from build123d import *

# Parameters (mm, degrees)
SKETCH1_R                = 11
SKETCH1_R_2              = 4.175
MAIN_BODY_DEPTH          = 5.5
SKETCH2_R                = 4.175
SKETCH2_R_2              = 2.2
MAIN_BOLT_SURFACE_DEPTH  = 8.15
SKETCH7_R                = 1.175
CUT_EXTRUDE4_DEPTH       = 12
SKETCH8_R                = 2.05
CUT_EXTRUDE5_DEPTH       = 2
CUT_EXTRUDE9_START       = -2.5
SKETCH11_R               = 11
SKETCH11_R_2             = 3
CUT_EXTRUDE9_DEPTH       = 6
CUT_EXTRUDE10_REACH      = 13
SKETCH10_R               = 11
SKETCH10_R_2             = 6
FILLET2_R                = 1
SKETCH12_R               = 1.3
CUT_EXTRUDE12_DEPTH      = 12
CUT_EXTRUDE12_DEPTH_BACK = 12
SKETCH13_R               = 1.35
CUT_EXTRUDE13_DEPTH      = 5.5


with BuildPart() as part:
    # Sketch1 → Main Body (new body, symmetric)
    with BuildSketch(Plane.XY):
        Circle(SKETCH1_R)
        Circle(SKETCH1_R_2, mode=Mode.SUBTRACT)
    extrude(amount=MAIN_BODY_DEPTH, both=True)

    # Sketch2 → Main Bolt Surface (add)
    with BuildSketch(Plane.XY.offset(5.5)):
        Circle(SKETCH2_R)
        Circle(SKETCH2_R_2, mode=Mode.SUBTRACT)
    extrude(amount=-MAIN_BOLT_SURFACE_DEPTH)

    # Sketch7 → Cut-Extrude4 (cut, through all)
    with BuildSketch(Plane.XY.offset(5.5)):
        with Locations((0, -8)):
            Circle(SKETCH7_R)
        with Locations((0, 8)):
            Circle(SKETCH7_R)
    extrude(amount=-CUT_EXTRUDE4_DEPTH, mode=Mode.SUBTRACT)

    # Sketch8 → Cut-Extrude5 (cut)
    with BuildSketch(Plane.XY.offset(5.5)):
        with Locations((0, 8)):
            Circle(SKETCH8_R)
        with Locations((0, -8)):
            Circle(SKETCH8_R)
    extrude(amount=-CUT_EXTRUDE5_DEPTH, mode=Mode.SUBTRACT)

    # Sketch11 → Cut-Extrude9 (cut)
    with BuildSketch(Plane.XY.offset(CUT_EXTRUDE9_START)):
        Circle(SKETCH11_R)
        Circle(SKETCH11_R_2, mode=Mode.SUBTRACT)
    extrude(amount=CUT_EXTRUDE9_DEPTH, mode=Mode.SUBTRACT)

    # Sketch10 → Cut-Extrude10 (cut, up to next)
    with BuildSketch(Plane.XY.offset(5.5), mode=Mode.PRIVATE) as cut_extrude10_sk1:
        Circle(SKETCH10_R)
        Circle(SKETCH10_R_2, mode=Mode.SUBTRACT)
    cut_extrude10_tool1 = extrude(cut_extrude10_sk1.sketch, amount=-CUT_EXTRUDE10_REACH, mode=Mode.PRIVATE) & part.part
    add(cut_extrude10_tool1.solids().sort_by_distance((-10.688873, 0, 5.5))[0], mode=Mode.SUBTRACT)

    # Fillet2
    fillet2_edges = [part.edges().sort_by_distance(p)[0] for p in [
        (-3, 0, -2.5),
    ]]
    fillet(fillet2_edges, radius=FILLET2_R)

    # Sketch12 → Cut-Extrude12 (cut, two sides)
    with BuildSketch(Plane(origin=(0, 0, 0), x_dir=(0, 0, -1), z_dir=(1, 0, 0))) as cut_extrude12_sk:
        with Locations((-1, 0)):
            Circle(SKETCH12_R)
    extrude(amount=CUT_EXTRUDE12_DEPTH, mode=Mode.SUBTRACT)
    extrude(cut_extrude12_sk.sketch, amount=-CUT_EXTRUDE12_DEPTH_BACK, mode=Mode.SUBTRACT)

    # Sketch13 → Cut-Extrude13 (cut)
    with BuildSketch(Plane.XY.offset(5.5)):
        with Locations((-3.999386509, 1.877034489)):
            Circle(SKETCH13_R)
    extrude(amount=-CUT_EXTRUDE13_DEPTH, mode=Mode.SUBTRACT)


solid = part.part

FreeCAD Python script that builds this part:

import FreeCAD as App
import Part
import Sketcher


def edges_at(feature, points):
    """Names of the edges that pass closest to the given points."""
    edges = feature.Shape.Edges
    near = lambda p: min(range(len(edges)), key=lambda i: edges[i].distToShape(Part.Vertex(*p))[0])
    return sorted({f"Edge{near(p) + 1}" for p in points})

doc = App.newDocument("Part")
body = doc.addObject("PartDesign::Body", "Body")

# Sketch on XY plane
sketch1 = body.newObject("Sketcher::SketchObject", "Sketch")
sketch1.AttachmentSupport = (doc.getObject("XY_Plane"), [""])
sketch1.MapMode = "FlatFace"
sketch1.addGeometry(Part.Circle(App.Vector(0, 0, 0), App.Vector(0, 0, 1), 11), False)
sketch1.addGeometry(Part.Circle(App.Vector(0, 0, 0), App.Vector(0, 0, 1), 4.2), False)
sketch1.addConstraint(Sketcher.Constraint("Coincident", 0, 3, -1, 1))
sketch1.addConstraint(Sketcher.Constraint("Coincident", 1, 3, -1, 1))
sketch1.addConstraint(Sketcher.Constraint("Diameter", 0, 22.0))
sketch1.addConstraint(Sketcher.Constraint("Diameter", 1, 8.35))
pad1 = body.newObject("PartDesign::Pad", "Pad")
pad1.Profile = sketch1
pad1.Length = 11
pad1.Midplane = True

# Sketch on XY plane
sketch2 = body.newObject("Sketcher::SketchObject", "Sketch001")
sketch2.AttachmentSupport = (doc.getObject("XY_Plane"), [""])
sketch2.MapMode = "FlatFace"
sketch2.AttachmentOffset = App.Placement(App.Vector(0, 0, 5.5), App.Rotation())
sketch2.addGeometry(Part.Circle(App.Vector(0, 0, 0), App.Vector(0, 0, 1), 4.2), False)
sketch2.addGeometry(Part.Circle(App.Vector(0, 0, 0), App.Vector(0, 0, 1), 2.2), False)
sketch2.addConstraint(Sketcher.Constraint("Coincident", 0, 3, -1, 1))
sketch2.addConstraint(Sketcher.Constraint("Coincident", 1, 3, -1, 1))
sketch2.addConstraint(Sketcher.Constraint("Diameter", 1, 4.4))
sketch2.addConstraint(Sketcher.Constraint("Diameter", 0, 8.35))
pad2 = body.newObject("PartDesign::Pad", "Pad001")
pad2.Profile = sketch2
pad2.Length = 8.15
pad2.Reversed = True

# Sketch on XY plane
sketch3 = body.newObject("Sketcher::SketchObject", "Sketch002")
sketch3.AttachmentSupport = (doc.getObject("XY_Plane"), [""])
sketch3.MapMode = "FlatFace"
sketch3.AttachmentOffset = App.Placement(App.Vector(0, 0, 5.5), App.Rotation())
sketch3.addGeometry(Part.Circle(App.Vector(0, -8, 0), App.Vector(0, 0, 1), 1.2), False)
sketch3.addGeometry(Part.Circle(App.Vector(0, 8, 0), App.Vector(0, 0, 1), 1.2), False)
sketch3.addConstraint(Sketcher.Constraint("Equal", 0, 1))
sketch3.addConstraint(Sketcher.Constraint("Symmetric", 0, 3, 1, 3, -1, 1))
sketch3.addConstraint(Sketcher.Constraint("PointOnObject", 0, 3, -2))
sketch3.addConstraint(Sketcher.Constraint("Diameter", 0, 2.35))
sketch3.addConstraint(Sketcher.Constraint("DistanceY", 0, 3, -1, 1, 8.0))
pocket1 = body.newObject("PartDesign::Pocket", "Pocket")
pocket1.Profile = sketch3
pocket1.Type = "ThroughAll"

# Sketch on XY plane
sketch4 = body.newObject("Sketcher::SketchObject", "Sketch003")
sketch4.AttachmentSupport = (doc.getObject("XY_Plane"), [""])
sketch4.MapMode = "FlatFace"
sketch4.AttachmentOffset = App.Placement(App.Vector(0, 0, 5.5), App.Rotation())
sketch4.addGeometry(Part.Circle(App.Vector(0, 8, 0), App.Vector(0, 0, 1), 2), False)
sketch4.addGeometry(Part.Circle(App.Vector(0, -8, 0), App.Vector(0, 0, 1), 2), False)
sketch4.addConstraint(Sketcher.Constraint("Equal", 0, 1))
sketch4.addConstraint(Sketcher.Constraint("Symmetric", 0, 3, 1, 3, -1, 1))
sketch4.addConstraint(Sketcher.Constraint("PointOnObject", 0, 3, -2))
sketch4.addConstraint(Sketcher.Constraint("Diameter", 0, 4.1))
sketch4.addConstraint(Sketcher.Constraint("DistanceY", -1, 1, 0, 3, 8.0))
pocket2 = body.newObject("PartDesign::Pocket", "Pocket001")
pocket2.Profile = sketch4
pocket2.Length = 2

# Sketch on XY plane
sketch5 = body.newObject("Sketcher::SketchObject", "Sketch004")
sketch5.AttachmentSupport = (doc.getObject("XY_Plane"), [""])
sketch5.MapMode = "FlatFace"
sketch5.AttachmentOffset = App.Placement(App.Vector(0, 0, -2.5), App.Rotation())
sketch5.addGeometry(Part.Circle(App.Vector(0, 0, 0), App.Vector(0, 0, 1), 11), False)
sketch5.addGeometry(Part.Circle(App.Vector(0, 0, 0), App.Vector(0, 0, 1), 3), False)
sketch5.addConstraint(Sketcher.Constraint("Coincident", 0, 3, -1, 1))
sketch5.addConstraint(Sketcher.Constraint("Coincident", 1, 3, -1, 1))
sketch5.addConstraint(Sketcher.Constraint("Diameter", 0, 22.0))
sketch5.addConstraint(Sketcher.Constraint("Diameter", 1, 6.0))
pocket3 = body.newObject("PartDesign::Pocket", "Pocket002")
pocket3.Profile = sketch5
pocket3.Length = 6
pocket3.Reversed = True

# Sketch on XY plane
sketch6 = body.newObject("Sketcher::SketchObject", "Sketch005")
sketch6.AttachmentSupport = (doc.getObject("XY_Plane"), [""])
sketch6.MapMode = "FlatFace"
sketch6.AttachmentOffset = App.Placement(App.Vector(0, 0, 5.5), App.Rotation())
sketch6.addGeometry(Part.Circle(App.Vector(0, 0, 0), App.Vector(0, 0, 1), 11), False)
sketch6.addGeometry(Part.Circle(App.Vector(0, 0, 0), App.Vector(0, 0, 1), 6), False)
sketch6.addConstraint(Sketcher.Constraint("Coincident", 0, 3, -1, 1))
sketch6.addConstraint(Sketcher.Constraint("Coincident", 1, 3, -1, 1))
sketch6.addConstraint(Sketcher.Constraint("Diameter", 0, 22.0))
sketch6.addConstraint(Sketcher.Constraint("Diameter", 1, 12.0))
pocket4 = body.newObject("PartDesign::Pocket", "Pocket003")
pocket4.Profile = sketch6
pocket4.Length = 2
doc.recompute()

fillet = body.newObject("PartDesign::Fillet", "Fillet")
fillet.Base = (pocket4, edges_at(pocket4, [(-3, 0, -2.5)]))
fillet.Radius = 1

# Sketch on YZ plane
sketch7 = body.newObject("Sketcher::SketchObject", "Sketch006")
sketch7.AttachmentSupport = (doc.getObject("YZ_Plane"), [""])
sketch7.MapMode = "FlatFace"
sketch7.addGeometry(Part.Circle(App.Vector(0, 1, 0), App.Vector(0, 0, 1), 1.3), False)
sketch7.addConstraint(Sketcher.Constraint("PointOnObject", 0, 3, -2))
sketch7.addConstraint(Sketcher.Constraint("Diameter", 0, 2.6))
sketch7.addConstraint(Sketcher.Constraint("DistanceY", -1, 1, 0, 3, 1.0))
pocket5 = body.newObject("PartDesign::Pocket", "Pocket004")
pocket5.Profile = sketch7
pocket5.Type = "ThroughAll"
pocket5.Midplane = True

# Sketch on XY plane
sketch8 = body.newObject("Sketcher::SketchObject", "Sketch007")
sketch8.AttachmentSupport = (doc.getObject("XY_Plane"), [""])
sketch8.MapMode = "FlatFace"
sketch8.AttachmentOffset = App.Placement(App.Vector(0, 0, 5.5), App.Rotation())
sketch8.addGeometry(Part.Circle(App.Vector(-4, 1.9, 0), App.Vector(0, 0, 1), 1.4), False)
sketch8.addConstraint(Sketcher.Constraint("Diameter", 0, 2.7))
sketch8.addConstraint(Sketcher.Constraint("DistanceX", 0, 3, -1, 1, 3.999387))
sketch8.addConstraint(Sketcher.Constraint("DistanceY", -1, 1, 0, 3, 1.877034))
pocket6 = body.newObject("PartDesign::Pocket", "Pocket005")
pocket6.Profile = sketch8
pocket6.Length = 5.5

doc.recompute()
